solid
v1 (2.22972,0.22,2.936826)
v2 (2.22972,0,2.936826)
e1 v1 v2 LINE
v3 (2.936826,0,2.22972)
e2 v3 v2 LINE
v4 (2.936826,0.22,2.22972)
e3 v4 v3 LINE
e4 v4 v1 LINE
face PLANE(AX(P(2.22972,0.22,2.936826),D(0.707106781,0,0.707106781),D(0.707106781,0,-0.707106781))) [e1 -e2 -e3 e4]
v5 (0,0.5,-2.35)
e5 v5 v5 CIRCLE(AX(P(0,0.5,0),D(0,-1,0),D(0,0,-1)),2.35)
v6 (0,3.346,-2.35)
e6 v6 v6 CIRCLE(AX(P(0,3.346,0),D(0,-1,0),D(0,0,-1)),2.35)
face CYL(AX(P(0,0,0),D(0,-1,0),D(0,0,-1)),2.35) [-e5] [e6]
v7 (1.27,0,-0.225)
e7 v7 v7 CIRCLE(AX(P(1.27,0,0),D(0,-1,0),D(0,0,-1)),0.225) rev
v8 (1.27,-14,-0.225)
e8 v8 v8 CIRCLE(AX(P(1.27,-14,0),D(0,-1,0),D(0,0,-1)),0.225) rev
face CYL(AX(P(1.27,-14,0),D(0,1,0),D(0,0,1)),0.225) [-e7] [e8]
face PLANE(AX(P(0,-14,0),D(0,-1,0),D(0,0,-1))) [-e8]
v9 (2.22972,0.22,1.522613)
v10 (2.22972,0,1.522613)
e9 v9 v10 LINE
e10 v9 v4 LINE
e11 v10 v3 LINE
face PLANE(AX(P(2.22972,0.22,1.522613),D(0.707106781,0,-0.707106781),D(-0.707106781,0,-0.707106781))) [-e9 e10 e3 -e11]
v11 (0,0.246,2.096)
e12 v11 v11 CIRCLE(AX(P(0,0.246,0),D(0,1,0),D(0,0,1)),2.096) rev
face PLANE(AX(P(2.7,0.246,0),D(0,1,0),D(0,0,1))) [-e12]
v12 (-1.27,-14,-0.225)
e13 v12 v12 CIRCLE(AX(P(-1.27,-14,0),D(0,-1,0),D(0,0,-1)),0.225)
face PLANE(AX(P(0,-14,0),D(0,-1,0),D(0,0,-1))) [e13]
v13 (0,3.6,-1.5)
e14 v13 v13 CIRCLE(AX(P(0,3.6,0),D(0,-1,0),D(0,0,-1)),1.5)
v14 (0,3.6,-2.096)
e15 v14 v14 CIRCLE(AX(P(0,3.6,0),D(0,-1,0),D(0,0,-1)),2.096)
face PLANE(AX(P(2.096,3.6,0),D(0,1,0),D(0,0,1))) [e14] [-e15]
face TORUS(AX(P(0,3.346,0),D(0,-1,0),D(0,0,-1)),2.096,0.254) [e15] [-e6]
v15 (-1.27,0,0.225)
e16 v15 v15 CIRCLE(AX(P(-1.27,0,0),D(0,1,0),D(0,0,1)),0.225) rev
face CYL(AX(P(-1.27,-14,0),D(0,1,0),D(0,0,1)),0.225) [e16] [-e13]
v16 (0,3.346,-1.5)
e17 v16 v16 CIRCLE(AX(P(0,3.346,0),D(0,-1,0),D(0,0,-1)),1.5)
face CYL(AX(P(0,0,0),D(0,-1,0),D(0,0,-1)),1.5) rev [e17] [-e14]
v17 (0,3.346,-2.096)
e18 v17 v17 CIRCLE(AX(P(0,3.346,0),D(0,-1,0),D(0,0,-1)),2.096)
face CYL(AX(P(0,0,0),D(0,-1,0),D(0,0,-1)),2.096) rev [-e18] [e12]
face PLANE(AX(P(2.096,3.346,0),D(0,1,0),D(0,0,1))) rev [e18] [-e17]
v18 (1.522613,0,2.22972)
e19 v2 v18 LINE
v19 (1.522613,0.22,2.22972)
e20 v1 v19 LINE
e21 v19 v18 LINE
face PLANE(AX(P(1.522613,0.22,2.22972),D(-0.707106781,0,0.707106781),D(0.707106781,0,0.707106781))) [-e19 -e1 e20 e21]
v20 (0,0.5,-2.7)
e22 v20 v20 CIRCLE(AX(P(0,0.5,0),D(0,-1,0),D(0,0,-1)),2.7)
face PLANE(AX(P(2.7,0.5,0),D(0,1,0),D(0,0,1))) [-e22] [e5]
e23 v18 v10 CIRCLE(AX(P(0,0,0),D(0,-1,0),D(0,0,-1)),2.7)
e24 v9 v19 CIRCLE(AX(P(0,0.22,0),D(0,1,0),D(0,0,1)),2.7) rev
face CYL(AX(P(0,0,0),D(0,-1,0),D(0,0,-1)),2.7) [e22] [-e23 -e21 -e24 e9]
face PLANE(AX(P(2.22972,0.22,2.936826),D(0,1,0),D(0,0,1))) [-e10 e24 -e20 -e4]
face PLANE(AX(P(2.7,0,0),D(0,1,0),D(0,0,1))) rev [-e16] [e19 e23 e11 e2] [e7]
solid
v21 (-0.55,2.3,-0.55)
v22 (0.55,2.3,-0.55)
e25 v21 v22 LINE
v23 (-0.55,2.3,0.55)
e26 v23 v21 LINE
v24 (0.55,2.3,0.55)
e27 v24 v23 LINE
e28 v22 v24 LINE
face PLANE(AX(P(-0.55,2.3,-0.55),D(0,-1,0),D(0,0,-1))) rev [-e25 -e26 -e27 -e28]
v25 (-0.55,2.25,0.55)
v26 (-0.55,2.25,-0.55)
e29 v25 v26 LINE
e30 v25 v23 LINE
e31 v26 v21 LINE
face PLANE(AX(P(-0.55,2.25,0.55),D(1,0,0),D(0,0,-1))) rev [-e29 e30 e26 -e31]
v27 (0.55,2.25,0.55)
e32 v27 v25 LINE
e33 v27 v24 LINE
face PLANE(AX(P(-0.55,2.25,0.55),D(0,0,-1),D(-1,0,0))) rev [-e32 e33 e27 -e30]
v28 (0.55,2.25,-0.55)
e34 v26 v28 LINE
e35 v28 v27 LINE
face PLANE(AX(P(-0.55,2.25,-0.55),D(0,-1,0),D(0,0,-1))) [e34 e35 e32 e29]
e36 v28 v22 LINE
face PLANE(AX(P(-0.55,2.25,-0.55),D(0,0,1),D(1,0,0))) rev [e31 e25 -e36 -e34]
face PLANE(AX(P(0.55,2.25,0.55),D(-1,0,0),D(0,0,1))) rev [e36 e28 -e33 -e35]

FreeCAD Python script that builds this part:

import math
import FreeCAD as App
import Part
import Sketcher


def add_polygon(sketch, points):
    """Adds a closed chain of lines whose ends are joined by coincident constraints."""
    first, n = sketch.GeometryCount, len(points)
    for a, b in zip(points, points[1:] + points[:1]):
        sketch.addGeometry(Part.LineSegment(App.Vector(*a, 0), App.Vector(*b, 0)), False)
    for i in range(n):
        sketch.addConstraint(Sketcher.Constraint("Coincident", first + i, 2, first + (i + 1) % n, 1))

doc = App.newDocument("Part")
params = doc.addObject("Spreadsheet::Sheet", "Params")
for row, (alias, value) in enumerate([
    ("sketch1_height", "0.5 mm"),
    ("sketch1_height2", "3.1 mm"),
    ("sketch1_width", "0.35 mm"),
    ("revolution_angle", "360 deg"),
    ("sketch2_diameter", "5.4 mm"),
    ("pad1_length", "0.246 mm"),
    ("sketch3_length", "1 mm"),
    ("pad2_length", "0.22 mm"),
    ("sketch4_diameter", "0.45 mm"),
    ("pad3_length", "14 mm"),
    ("sketch5_width", "1.1 mm"),
    ("pad4_length", "0.05 mm"),
], start=1):
    params.set(f"A{row}", alias)
    params.set(f"B{row}", "=" + value)
    params.setAlias(f"B{row}", alias)

body = doc.addObject("PartDesign::Body", "Body")

sketch1 = doc.addObject("Sketcher::SketchObject", "Sketch")
body.addObject(sketch1)
sketch1.AttachmentSupport = (doc.XY_Plane, [""])
sketch1.MapMode = "FlatFace"
sketch1.addGeometry(Part.LineSegment(App.Vector(2.7, 0, 0), App.Vector(2.7, 0.5, 0)), False)
sketch1.addGeometry(Part.LineSegment(App.Vector(2.7, 0.5, 0), App.Vector(2.35, 0.5, 0)), False)
sketch1.addGeometry(Part.LineSegment(App.Vector(2.35, 0.5, 0), App.Vector(2.35, 3.346, 0)), False)
sketch1.addGeometry(Part.ArcOfCircle(Part.Circle(App.Vector(2.096, 3.346, 0), App.Vector(0, 0, 1), 0.254), math.radians(0), math.radians(90)), False)
sketch1.addGeometry(Part.LineSegment(App.Vector(2.096, 3.6, 0), App.Vector(1.5, 3.6, 0)), False)
sketch1.addGeometry(Part.LineSegment(App.Vector(1.5, 3.6, 0), App.Vector(1.5, 3.346, 0)), False)
sketch1.addGeometry(Part.LineSegment(App.Vector(1.5, 3.346, 0), App.Vector(2.096, 3.346, 0)), False)
sketch1.addGeometry(Part.LineSegment(App.Vector(2.096, 3.346, 0), App.Vector(2.096, 0.246, 0)), False)
sketch1.addGeometry(Part.LineSegment(App.Vector(2.096, 0.246, 0), App.Vector(2.446, 0.246, 0)), False)
sketch1.addGeometry(Part.LineSegment(App.Vector(2.446, 0.246, 0), App.Vector(2.446, 0, 0)), False)
sketch1.addGeometry(Part.LineSegment(App.Vector(2.446, 0, 0), App.Vector(2.7, 0, 0)), False)
sketch1.addConstraint(Sketcher.Constraint("Coincident", 0, 2, 1, 1))
sketch1.addConstraint(Sketcher.Constraint("Coincident", 1, 2, 2, 1))
sketch1.addConstraint(Sketcher.Constraint("Tangent", 2, 2, 3, 1))
sketch1.addConstraint(Sketcher.Constraint("Tangent", 3, 2, 4, 1))
sketch1.addConstraint(Sketcher.Constraint("Coincident", 4, 2, 5, 1))
sketch1.addConstraint(Sketcher.Constraint("Coincident", 5, 2, 6, 1))
sketch1.addConstraint(Sketcher.Constraint("Coincident", 6, 2, 7, 1))
sketch1.addConstraint(Sketcher.Constraint("Coincident", 7, 2, 8, 1))
sketch1.addConstraint(Sketcher.Constraint("Coincident", 8, 2, 9, 1))
sketch1.addConstraint(Sketcher.Constraint("Coincident", 9, 2, 10, 1))
sketch1.addConstraint(Sketcher.Constraint("Coincident", 10, 2, 0, 1))
sketch1.addConstraint(Sketcher.Constraint("Vertical", 0))
sketch1.addConstraint(Sketcher.Constraint("Horizontal", 1))
sketch1.addConstraint(Sketcher.Constraint("Vertical", 2))
sketch1.addConstraint(Sketcher.Constraint("Horizontal", 4))
sketch1.addConstraint(Sketcher.Constraint("Vertical", 5))
sketch1.addConstraint(Sketcher.Constraint("Horizontal", 6))
sketch1.addConstraint(Sketcher.Constraint("Vertical", 7))
sketch1.addConstraint(Sketcher.Constraint("Horizontal", 8))
sketch1.addConstraint(Sketcher.Constraint("Vertical", 9))
sketch1.addConstraint(Sketcher.Constraint("Horizontal", 10))
sketch1.addConstraint(Sketcher.Constraint("Coincident", 6, 2, 3, 3))
sketch1.addConstraint(Sketcher.Constraint("PointOnObject", 9, 2, -1))
sketch1.addConstraint(Sketcher.Constraint("Equal", 1, 8))
sketch1.addConstraint(Sketcher.Constraint("DistanceY", 0, 1, 0, 2, 0.5))
sketch1.addConstraint(Sketcher.Constraint("DistanceY", 7, 2, 7, 1, 3.1))
sketch1.addConstraint(Sketcher.Constraint("Radius", 3, 0.254))
sketch1.addConstraint(Sketcher.Constraint("DistanceX", 1, 2, 1, 1, 0.35))
sketch1.addConstraint(Sketcher.Constraint("DistanceX", -1, 1, 0, 2, 2.7))
sketch1.addConstraint(Sketcher.Constraint("DistanceY", -1, 1, 3, 2, 3.6))
sketch1.addConstraint(Sketcher.Constraint("DistanceX", -1, 1, 4, 2, 1.5))
sketch1.setExpression("Constraints[24]", "Params.sketch1_height")
sketch1.setExpression("Constraints[25]", "Params.sketch1_height2")
sketch1.setExpression("Constraints[27]", "Params.sketch1_width")
revolution = doc.addObject("PartDesign::Revolution", "Revolution")
body.addObject(revolution)
revolution.Profile = sketch1
revolution.ReferenceAxis = (sketch1, ["V_Axis"])
revolution.setExpression("Angle", "Params.revolution_angle")

sketch2 = doc.addObject("Sketcher::SketchObject", "Sketch001")
body.addObject(sketch2)
sketch2.AttachmentSupport = (doc.XZ_Plane, [""])
sketch2.MapMode = "FlatFace"
sketch2.addGeometry(Part.Circle(App.Vector(0, 0, 0), App.Vector(0, 0, 1), 2.7), False)
sketch2.addConstraint(Sketcher.Constraint("Coincident", 0, 3, -1, 1))
sketch2.addConstraint(Sketcher.Constraint("Diameter", 0, 5.4))
sketch2.setExpression("Constraints[1]", "Params.sketch2_diameter")
pad1 = doc.addObject("PartDesign::Pad", "Pad")
body.addObject(pad1)
pad1.Profile = sketch2
pad1.setExpression("Length", "Params.pad1_length")
pad1.Reversed = True

sketch3 = doc.addObject("Sketcher::SketchObject", "Sketch002")
body.addObject(sketch3)
sketch3.AttachmentSupport = (doc.XZ_Plane, [""])
sketch3.MapMode = "FlatFace"
add_polygon(sketch3, [(1.522613, 2.22972), (2.22972, 1.522613), (2.936826, 2.22972), (2.22972, 2.936826)])
sketch3.addConstraint(Sketcher.Constraint("Perpendicular", 0, 1))
sketch3.addConstraint(Sketcher.Constraint("Perpendicular", 1, 2))
sketch3.addConstraint(Sketcher.Constraint("Perpendicular", 2, 3))
sketch3.addConstraint(Sketcher.Constraint("Horizontal", 1, 2, 3, 2))
sketch3.addConstraint(Sketcher.Constraint("Vertical", 0, 2, 2, 2))
sketch3.addConstraint(Sketcher.Constraint("Distance", 0, 1.0))
sketch3.addConstraint(Sketcher.Constraint("DistanceX", -1, 1, 0, 2, 2.22972))
sketch3.addConstraint(Sketcher.Constraint("DistanceY", -1, 1, 1, 2, 2.22972))
sketch3.setExpression("Constraints[9]", "Params.sketch3_length")
pad2 = doc.addObject("PartDesign::Pad", "Pad001")
body.addObject(pad2)
pad2.Profile = sketch3
pad2.setExpression("Length", "Params.pad2_length")
pad2.Reversed = True

sketch4 = doc.addObject("Sketcher::SketchObject", "Sketch003")
body.addObject(sketch4)
sketch4.AttachmentSupport = (doc.XZ_Plane, [""])
sketch4.MapMode = "FlatFace"
sketch4.addGeometry(Part.Circle(App.Vector(1.27, 0, 0), App.Vector(0, 0, 1), 0.225), False)
sketch4.addGeometry(Part.Circle(App.Vector(-1.27, 0, 0), App.Vector(0, 0, 1), 0.225), False)
sketch4.addConstraint(Sketcher.Constraint("Equal", 0, 1))
sketch4.addConstraint(Sketcher.Constraint("Symmetric", 0, 3, 1, 3, -1, 1))
sketch4.addConstraint(Sketcher.Constraint("PointOnObject", 0, 3, -1))
sketch4.addConstraint(Sketcher.Constraint("Diameter", 0, 0.45))
sketch4.addConstraint(Sketcher.Constraint("DistanceX", -1, 1, 0, 3, 1.27))
sketch4.setExpression("Constraints[3]", "Params.sketch4_diameter")
pad3 = doc.addObject("PartDesign::Pad", "Pad002")
body.addObject(pad3)
pad3.Profile = sketch4
pad3.setExpression("Length", "Params.pad3_length")
body2 = doc.addObject("PartDesign::Body", "Body001")

sketch5 = doc.addObject("Sketcher::SketchObject", "Sketch004")
body2.addObject(sketch5)
sketch5.AttachmentSupport = (doc.getObject("XZ_Plane001"), [""])
sketch5.MapMode = "FlatFace"
sketch5.AttachmentOffset = App.Placement(App.Vector(0, 0, -2.3), App.Rotation())
add_polygon(sketch5, [(-0.55, 0.55), (-0.55, -0.55), (0.55, -0.55), (0.55, 0.55)])
sketch5.addConstraint(Sketcher.Constraint("Vertical", 0))
sketch5.addConstraint(Sketcher.Constraint("Horizontal", 1))
sketch5.addConstraint(Sketcher.Constraint("Vertical", 2))
sketch5.addConstraint(Sketcher.Constraint("Horizontal", 3))
sketch5.addConstraint(Sketcher.Constraint("Symmetric", 0, 2, 2, 2, -1, 1))
sketch5.addConstraint(Sketcher.Constraint("Equal", 3, 0))
sketch5.addConstraint(Sketcher.Constraint("DistanceX", 1, 1, 1, 2, 1.1))
sketch5.setExpression("Constraints[10]", "Params.sketch5_width")
pad4 = doc.addObject("PartDesign::Pad", "Pad003")
body2.addObject(pad4)
pad4.Profile = sketch5
pad4.setExpression("Length", "Params.pad4_length")

doc.recompute()
